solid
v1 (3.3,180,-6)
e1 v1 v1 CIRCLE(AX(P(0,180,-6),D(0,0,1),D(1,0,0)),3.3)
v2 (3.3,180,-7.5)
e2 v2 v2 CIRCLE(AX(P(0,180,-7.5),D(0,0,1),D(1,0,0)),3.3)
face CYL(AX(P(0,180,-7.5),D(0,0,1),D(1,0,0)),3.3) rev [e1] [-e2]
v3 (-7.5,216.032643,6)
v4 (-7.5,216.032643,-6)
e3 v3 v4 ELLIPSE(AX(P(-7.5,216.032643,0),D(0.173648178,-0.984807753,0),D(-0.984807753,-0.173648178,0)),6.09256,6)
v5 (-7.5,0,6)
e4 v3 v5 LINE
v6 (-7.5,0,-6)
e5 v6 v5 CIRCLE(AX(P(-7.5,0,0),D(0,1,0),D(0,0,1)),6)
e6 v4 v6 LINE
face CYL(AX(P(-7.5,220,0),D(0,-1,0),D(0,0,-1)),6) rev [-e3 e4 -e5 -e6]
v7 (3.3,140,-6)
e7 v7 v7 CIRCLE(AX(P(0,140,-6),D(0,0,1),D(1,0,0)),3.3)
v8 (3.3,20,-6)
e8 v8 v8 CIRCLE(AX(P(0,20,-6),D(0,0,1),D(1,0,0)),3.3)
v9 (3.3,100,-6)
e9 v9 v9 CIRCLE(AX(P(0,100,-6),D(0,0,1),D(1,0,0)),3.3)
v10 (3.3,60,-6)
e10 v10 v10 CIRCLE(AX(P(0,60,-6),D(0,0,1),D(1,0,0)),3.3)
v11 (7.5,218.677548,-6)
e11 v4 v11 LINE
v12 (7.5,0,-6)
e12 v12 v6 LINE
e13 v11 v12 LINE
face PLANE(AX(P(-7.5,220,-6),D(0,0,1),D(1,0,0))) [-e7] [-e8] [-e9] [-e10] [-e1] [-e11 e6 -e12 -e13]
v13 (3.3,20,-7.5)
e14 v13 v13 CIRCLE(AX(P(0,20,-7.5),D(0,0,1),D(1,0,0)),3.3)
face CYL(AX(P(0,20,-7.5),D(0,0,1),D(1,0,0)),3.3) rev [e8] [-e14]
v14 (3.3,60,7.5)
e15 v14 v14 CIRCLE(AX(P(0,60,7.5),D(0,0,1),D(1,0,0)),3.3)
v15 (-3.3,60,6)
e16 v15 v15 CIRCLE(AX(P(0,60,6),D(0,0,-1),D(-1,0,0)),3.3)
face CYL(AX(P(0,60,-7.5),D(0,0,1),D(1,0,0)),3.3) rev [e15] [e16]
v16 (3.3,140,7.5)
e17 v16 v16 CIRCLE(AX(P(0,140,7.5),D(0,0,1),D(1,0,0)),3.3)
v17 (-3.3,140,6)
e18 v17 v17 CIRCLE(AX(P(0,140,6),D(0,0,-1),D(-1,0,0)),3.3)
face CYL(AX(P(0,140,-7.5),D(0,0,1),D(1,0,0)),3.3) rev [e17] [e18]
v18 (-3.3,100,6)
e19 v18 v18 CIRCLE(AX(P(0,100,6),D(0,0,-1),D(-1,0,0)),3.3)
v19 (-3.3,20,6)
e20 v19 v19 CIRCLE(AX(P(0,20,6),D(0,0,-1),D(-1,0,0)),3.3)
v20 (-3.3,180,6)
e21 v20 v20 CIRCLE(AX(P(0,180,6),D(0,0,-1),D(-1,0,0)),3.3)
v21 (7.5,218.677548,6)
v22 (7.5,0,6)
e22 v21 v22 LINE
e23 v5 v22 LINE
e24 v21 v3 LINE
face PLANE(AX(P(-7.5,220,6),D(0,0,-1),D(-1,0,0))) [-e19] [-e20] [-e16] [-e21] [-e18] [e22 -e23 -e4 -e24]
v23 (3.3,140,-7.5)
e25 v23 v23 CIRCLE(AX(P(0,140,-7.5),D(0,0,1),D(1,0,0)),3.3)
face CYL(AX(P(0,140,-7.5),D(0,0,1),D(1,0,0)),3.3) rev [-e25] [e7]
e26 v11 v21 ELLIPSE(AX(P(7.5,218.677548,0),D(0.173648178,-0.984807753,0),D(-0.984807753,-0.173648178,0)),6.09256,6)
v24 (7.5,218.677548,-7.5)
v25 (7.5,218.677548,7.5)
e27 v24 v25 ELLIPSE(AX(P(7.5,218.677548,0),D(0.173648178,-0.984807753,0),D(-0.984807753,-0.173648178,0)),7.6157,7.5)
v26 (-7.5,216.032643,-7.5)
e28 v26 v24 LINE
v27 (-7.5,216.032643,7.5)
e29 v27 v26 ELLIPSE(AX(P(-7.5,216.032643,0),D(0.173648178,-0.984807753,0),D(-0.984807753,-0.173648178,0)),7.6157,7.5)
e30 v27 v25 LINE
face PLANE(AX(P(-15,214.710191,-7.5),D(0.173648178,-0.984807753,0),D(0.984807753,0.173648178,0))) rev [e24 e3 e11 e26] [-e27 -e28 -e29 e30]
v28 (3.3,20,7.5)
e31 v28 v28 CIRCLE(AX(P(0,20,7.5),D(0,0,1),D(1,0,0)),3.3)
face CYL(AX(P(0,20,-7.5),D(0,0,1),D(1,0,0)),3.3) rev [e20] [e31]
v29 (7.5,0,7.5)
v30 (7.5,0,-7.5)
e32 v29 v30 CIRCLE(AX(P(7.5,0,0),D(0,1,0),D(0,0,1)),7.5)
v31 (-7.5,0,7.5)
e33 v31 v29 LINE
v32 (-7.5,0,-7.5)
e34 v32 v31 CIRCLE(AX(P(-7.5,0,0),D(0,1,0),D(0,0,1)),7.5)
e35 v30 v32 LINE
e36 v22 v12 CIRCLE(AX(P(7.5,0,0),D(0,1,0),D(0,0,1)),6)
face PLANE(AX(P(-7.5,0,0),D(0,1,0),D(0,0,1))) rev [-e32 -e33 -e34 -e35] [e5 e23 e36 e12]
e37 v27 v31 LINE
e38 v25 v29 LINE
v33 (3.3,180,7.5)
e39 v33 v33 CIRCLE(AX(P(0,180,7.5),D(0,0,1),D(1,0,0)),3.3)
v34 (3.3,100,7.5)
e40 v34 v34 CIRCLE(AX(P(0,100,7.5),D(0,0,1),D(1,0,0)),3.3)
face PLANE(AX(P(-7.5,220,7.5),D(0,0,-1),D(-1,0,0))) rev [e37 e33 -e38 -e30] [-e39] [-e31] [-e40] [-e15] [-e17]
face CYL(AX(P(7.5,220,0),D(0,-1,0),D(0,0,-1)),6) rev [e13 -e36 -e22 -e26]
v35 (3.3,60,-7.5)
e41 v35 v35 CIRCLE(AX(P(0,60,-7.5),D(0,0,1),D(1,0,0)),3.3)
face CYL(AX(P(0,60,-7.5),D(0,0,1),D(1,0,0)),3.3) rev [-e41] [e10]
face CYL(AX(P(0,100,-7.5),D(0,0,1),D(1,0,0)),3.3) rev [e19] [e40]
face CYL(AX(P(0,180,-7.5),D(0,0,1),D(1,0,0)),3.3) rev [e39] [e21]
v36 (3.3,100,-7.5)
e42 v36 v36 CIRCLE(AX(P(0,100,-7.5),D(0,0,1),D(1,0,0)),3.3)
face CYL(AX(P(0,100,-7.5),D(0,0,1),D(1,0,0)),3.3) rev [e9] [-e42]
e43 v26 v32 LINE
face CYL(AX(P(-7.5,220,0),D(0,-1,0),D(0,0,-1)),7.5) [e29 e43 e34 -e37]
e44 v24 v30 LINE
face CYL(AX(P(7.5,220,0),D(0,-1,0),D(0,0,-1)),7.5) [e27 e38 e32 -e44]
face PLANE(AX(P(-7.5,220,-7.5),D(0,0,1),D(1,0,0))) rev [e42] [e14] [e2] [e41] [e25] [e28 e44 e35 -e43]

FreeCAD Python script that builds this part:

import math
import FreeCAD as App
import Part
import Sketcher
from FreeCAD import Vector
Q = App.Units.Quantity

doc = App.newDocument("Part")
params = doc.addObject("Spreadsheet::Sheet", "Params")
for row, (alias, value) in enumerate([
    ("sketch1_radius", "6 mm"),
    ("sketch1_radius2", "7.5 mm"),
    ("sketch1_width", "15 mm"),
    ("pad1_length", "220 mm"),
    ("sketch2_diameter", "6.6 mm"),
    ("sketch2_width", "30 mm"),
], start=1):
    params.set(f"A{row}", alias)
    params.set(f"B{row}", "=" + value)
    params.setAlias(f"B{row}", alias)

body = doc.addObject("PartDesign::Body", "Body")

# Sketch on XZ plane
sketch1 = body.newObject("Sketcher::SketchObject", "Sketch")
sketch1.AttachmentSupport = (doc.getObject("XZ_Plane"), [""])
sketch1.MapMode = "FlatFace"
sketch1.addGeometry([
    Part.LineSegment(Vector(7.5, -7.5, 0), Vector(-7.5, -7.5, 0)),  # 0
    Part.ArcOfCircle(Part.Circle(Vector(-7.5, 0, 0), Vector(0, 0, 1), 7.5), math.radians(90), math.radians(270)),  # 1
    Part.LineSegment(Vector(-7.5, 7.5, 0), Vector(7.5, 7.5, 0)),  # 2
    Part.ArcOfCircle(Part.Circle(Vector(7.5, 0, 0), Vector(0, 0, 1), 7.5), math.radians(-90), math.radians(90)),  # 3
    Part.LineSegment(Vector(-7.5, -6, 0), Vector(7.5, -6, 0)),  # 4
    Part.ArcOfCircle(Part.Circle(Vector(7.5, 0, 0), Vector(0, 0, 1), 6), math.radians(-90), math.radians(90)),  # 5
    Part.LineSegment(Vector(7.5, 6, 0), Vector(-7.5, 6, 0)),  # 6
    Part.ArcOfCircle(Part.Circle(Vector(-7.5, 0, 0), Vector(0, 0, 1), 6), math.radians(90), math.radians(270)),  # 7
], False)
sketch1.addConstraint([
    Sketcher.Constraint("Tangent", 0, 2, 1, 2),
    Sketcher.Constraint("Tangent", 1, 1, 2, 1),
    Sketcher.Constraint("Tangent", 2, 2, 3, 2),
    Sketcher.Constraint("Tangent", 3, 1, 0, 1),
    Sketcher.Constraint("Tangent", 4, 2, 5, 1),
    Sketcher.Constraint("Tangent", 5, 2, 6, 1),
    Sketcher.Constraint("Tangent", 6, 2, 7, 1),
    Sketcher.Constraint("Tangent", 7, 2, 4, 1),
    Sketcher.Constraint("Horizontal", 0),
    Sketcher.Constraint("Horizontal", 2),
    Sketcher.Constraint("Horizontal", 4),
    Sketcher.Constraint("Horizontal", 6),
    Sketcher.Constraint("Coincident", 5, 3, 3, 3),
    Sketcher.Constraint("Symmetric", 1, 3, 3, 3, -1, 1),
    Sketcher.Constraint("Vertical", 7, 3, 0, 2),
    Sketcher.Constraint("Radius", 5, 6.0),
    Sketcher.Constraint("Radius", 1, 7.5),
    Sketcher.Constraint("DistanceX", 0, 2, 0, 1, 15.0),
])
sketch1.setExpression("Constraints[15]", "Params.sketch1_radius")
sketch1.setExpression("Constraints[16]", "Params.sketch1_radius2")
sketch1.setExpression("Constraints[17]", "Params.sketch1_width")
pad1 = body.newObject("PartDesign::Pad", "Pad")
pad1.Profile = sketch1
pad1.setExpression("Length", "Params.pad1_length")
pad1.Reversed = True

# Sketch on XY plane
sketch2 = body.newObject("Sketcher::SketchObject", "Sketch001")
sketch2.AttachmentSupport = (doc.getObject("XY_Plane"), [""])
sketch2.MapMode = "FlatFace"
sketch2.AttachmentOffset = App.Placement(Vector(0, 0, 7.5), App.Rotation())
sketch2.addGeometry([
    Part.Circle(Vector(0, 180, 0), Vector(0, 0, 1), 3.3),  # 0
    Part.Circle(Vector(0, 140, 0), Vector(0, 0, 1), 3.3),  # 1
    Part.Circle(Vector(0, 100, 0), Vector(0, 0, 1), 3.3),  # 2
    Part.Circle(Vector(0, 60, 0), Vector(0, 0, 1), 3.3),  # 3
    Part.Circle(Vector(0, 20, 0), Vector(0, 0, 1), 3.3),  # 4
    Part.LineSegment(Vector(15, 220, 0), Vector(-15, 220, 0)),  # 5
    Part.LineSegment(Vector(-15, 220, 0), Vector(-15, 214.710191, 0)),  # 6
    Part.LineSegment(Vector(-15, 214.710191, 0), Vector(15, 220, 0)),  # 7
], False)
sketch2.addConstraint([
    Sketcher.Constraint("Coincident", 5, 2, 6, 1),
    Sketcher.Constraint("Coincident", 6, 2, 7, 1),
    Sketcher.Constraint("Coincident", 7, 2, 5, 1),
    Sketcher.Constraint("Horizontal", 5),
    Sketcher.Constraint("Vertical", 6),
    Sketcher.Constraint("Equal", 0, 1),
    Sketcher.Constraint("Equal", 1, 2),
    Sketcher.Constraint("Equal", 2, 3),
    Sketcher.Constraint("Equal", 3, 4),
    Sketcher.Constraint("PointOnObject", 0, 3, -2),
    Sketcher.Constraint("PointOnObject", 1, 3, -2),
    Sketcher.Constraint("PointOnObject", 2, 3, -2),
    Sketcher.Constraint("PointOnObject", 3, 3, -2),
    Sketcher.Constraint("PointOnObject", 4, 3, -2),
    Sketcher.Constraint("Diameter", 0, 6.6),
    Sketcher.Constraint("DistanceX", 5, 2, 5, 1, 30.0),
    Sketcher.Constraint("Angle", 7, Q("10 deg")),
    Sketcher.Constraint("DistanceY", -1, 1, 0, 3, 180.0),
    Sketcher.Constraint("DistanceY", -1, 1, 1, 3, 140.0),
    Sketcher.Constraint("DistanceY", -1, 1, 2, 3, 100.0),
    Sketcher.Constraint("DistanceY", -1, 1, 3, 3, 60.0),
    Sketcher.Constraint("DistanceY", -1, 1, 4, 3, 20.0),
    Sketcher.Constraint("DistanceX", 5, 2, -1, 1, 15.0),
    Sketcher.Constraint("DistanceY", -1, 1, 5, 2, 220.0),
])
sketch2.setExpression("Constraints[14]", "Params.sketch2_diameter")
sketch2.setExpression("Constraints[15]", "Params.sketch2_width")
pocket1 = body.newObject("PartDesign::Pocket", "Pocket")
pocket1.Profile = sketch2
pocket1.Type = "ThroughAll"

doc.recompute()
